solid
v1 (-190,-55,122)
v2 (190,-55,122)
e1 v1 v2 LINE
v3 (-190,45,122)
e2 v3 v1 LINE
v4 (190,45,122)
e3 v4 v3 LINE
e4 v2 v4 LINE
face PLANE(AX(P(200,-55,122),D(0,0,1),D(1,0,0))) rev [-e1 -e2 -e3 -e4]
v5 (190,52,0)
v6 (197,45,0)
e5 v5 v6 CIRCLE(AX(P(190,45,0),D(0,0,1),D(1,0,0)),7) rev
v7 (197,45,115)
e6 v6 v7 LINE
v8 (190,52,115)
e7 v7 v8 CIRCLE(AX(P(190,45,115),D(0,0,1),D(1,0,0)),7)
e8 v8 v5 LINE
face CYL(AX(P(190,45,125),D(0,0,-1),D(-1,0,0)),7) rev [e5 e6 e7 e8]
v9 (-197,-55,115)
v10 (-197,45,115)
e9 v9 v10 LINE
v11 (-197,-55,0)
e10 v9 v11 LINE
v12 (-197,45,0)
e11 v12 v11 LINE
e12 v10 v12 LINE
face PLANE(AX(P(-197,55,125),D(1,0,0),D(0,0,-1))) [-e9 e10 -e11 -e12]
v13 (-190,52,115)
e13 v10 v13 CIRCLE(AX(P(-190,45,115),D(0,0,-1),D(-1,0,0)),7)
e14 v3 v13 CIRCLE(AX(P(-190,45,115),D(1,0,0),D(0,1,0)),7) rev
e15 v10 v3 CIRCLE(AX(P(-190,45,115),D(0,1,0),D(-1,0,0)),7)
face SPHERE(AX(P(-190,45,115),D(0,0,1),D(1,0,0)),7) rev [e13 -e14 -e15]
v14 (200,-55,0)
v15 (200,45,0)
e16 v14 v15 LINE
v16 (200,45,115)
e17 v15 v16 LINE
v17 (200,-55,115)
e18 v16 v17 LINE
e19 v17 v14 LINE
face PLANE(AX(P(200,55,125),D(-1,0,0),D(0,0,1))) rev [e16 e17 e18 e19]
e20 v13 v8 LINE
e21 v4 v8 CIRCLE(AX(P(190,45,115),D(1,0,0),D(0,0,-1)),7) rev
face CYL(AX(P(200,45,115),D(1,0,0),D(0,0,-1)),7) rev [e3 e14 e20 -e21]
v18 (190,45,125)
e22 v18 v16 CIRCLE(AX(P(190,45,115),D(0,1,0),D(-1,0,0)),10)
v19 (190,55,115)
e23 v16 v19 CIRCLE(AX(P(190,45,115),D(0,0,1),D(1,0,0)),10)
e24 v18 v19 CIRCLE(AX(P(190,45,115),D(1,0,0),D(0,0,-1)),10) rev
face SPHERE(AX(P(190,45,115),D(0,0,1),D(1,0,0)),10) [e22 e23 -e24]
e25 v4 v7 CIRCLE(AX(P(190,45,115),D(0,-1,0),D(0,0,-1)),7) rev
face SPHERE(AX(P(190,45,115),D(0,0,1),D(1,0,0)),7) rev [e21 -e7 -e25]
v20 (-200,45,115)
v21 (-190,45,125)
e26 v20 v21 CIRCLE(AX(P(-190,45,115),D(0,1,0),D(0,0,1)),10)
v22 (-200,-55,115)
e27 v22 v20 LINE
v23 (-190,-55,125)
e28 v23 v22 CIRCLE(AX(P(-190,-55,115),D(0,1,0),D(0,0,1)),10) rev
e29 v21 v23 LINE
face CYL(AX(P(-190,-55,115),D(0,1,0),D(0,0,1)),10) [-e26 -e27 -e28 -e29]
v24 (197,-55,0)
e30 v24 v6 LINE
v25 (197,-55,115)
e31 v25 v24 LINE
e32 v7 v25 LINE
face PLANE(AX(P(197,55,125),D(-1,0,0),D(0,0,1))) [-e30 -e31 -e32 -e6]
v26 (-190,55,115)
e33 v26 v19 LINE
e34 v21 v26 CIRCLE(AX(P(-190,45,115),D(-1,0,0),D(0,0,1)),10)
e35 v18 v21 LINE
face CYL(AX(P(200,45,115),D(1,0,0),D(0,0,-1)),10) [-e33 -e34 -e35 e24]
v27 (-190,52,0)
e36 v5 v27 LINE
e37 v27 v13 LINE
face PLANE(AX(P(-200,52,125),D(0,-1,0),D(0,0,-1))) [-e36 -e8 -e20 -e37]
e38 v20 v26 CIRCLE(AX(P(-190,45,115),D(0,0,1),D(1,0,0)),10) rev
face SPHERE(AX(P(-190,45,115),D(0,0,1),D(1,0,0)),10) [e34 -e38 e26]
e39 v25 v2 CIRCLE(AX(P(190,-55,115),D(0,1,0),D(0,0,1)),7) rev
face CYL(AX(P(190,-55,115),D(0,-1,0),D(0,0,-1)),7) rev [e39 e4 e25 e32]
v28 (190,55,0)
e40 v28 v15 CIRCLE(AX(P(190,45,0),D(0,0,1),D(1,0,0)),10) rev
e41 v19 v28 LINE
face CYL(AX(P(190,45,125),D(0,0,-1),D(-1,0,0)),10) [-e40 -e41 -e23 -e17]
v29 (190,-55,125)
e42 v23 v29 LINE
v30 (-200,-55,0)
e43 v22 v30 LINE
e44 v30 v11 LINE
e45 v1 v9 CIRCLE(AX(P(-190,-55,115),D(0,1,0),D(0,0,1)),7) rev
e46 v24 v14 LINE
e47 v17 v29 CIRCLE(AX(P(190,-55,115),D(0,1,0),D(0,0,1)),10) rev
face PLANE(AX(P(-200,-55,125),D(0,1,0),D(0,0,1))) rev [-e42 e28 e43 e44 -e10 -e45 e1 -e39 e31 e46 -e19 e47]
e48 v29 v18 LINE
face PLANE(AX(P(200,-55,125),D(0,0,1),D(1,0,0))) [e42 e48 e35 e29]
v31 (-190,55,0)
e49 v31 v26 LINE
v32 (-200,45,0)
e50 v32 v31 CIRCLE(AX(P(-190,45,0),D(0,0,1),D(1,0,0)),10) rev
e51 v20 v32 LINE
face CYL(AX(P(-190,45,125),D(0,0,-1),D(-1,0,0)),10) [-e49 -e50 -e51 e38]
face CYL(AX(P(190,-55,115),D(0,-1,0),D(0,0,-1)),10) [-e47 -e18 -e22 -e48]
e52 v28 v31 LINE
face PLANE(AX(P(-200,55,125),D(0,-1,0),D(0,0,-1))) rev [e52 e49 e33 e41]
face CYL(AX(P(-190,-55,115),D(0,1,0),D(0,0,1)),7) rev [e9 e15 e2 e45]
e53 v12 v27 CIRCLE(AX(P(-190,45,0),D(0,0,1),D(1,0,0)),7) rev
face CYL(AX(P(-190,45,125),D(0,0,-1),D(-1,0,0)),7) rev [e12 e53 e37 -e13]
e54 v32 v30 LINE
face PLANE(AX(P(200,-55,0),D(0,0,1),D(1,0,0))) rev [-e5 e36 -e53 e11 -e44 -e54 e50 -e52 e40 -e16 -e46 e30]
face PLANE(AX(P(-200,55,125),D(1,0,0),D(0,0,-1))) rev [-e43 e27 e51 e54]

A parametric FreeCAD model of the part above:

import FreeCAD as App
import Part
import Sketcher
Q = App.Units.Quantity


def edges_at(feature, points):
    """Names of the edges that pass closest to the given points."""
    edges = feature.Shape.Edges
    near = lambda p: min(range(len(edges)), key=lambda i: edges[i].distToShape(Part.Vertex(*p))[0])
    return sorted({f"Edge{near(p) + 1}" for p in points})


def faces_at(feature, points):
    """Names of the faces that lie closest to the given points."""
    faces = feature.Shape.Faces
    near = lambda p: min(range(len(faces)), key=lambda i: faces[i].distToShape(Part.Vertex(*p))[0])
    return sorted({f"Face{near(p) + 1}" for p in points})


def add_polygon(sketch, points):
    """Adds a closed chain of lines whose ends are joined by coincident constraints."""
    first, n = sketch.GeometryCount, len(points)
    for a, b in zip(points, points[1:] + points[:1]):
        sketch.addGeometry(Part.LineSegment(App.Vector(*a, 0), App.Vector(*b, 0)), False)
    for i in range(n):
        sketch.addConstraint(Sketcher.Constraint("Coincident", first + i, 2, first + (i + 1) % n, 1))

doc = App.newDocument("Part")
body = doc.addObject("PartDesign::Body", "Body")

sketch1 = body.newObject("Sketcher::SketchObject", "Sketch")
sketch1.AttachmentSupport = (doc.getObject("XY_Plane"), [""])
sketch1.MapMode = "FlatFace"
add_polygon(sketch1, [(-200, 55), (-200, -55), (200, -55), (200, 55)])
sketch1.addConstraint([
    Sketcher.Constraint("Vertical", 0),
    Sketcher.Constraint("Horizontal", 1),
    Sketcher.Constraint("Vertical", 2),
    Sketcher.Constraint("Horizontal", 3),
    Sketcher.Constraint("Symmetric", 0, 2, 2, 2, -1, 1),
    Sketcher.Constraint("DistanceX", 1, 1, 1, 2, Q("400 mm")),
    Sketcher.Constraint("DistanceY", 0, 2, 0, 1, Q("110 mm")),
])
pad1 = body.newObject("PartDesign::Pad", "Pad")
pad1.Profile = sketch1
pad1.Length = 125
doc.recompute()

fillet = body.newObject("PartDesign::Fillet", "Fillet")
fillet.Base = (pad1, edges_at(pad1, [
    (-200, 0, 125),
    (200, 0, 125),
    (0, 55, 125),
    (-200, 55, 62.5),
    (200, 55, 62.5),
]))
fillet.Radius = 10
doc.recompute()

thickness = body.newObject("PartDesign::Thickness", "Thickness")
thickness.Base = (fillet, faces_at(fillet, [(0, 0, 0), (0, -55, 62.5)]))
thickness.Value = 3
thickness.Reversed = True
thickness.Join = "Intersection"

doc.recompute()
